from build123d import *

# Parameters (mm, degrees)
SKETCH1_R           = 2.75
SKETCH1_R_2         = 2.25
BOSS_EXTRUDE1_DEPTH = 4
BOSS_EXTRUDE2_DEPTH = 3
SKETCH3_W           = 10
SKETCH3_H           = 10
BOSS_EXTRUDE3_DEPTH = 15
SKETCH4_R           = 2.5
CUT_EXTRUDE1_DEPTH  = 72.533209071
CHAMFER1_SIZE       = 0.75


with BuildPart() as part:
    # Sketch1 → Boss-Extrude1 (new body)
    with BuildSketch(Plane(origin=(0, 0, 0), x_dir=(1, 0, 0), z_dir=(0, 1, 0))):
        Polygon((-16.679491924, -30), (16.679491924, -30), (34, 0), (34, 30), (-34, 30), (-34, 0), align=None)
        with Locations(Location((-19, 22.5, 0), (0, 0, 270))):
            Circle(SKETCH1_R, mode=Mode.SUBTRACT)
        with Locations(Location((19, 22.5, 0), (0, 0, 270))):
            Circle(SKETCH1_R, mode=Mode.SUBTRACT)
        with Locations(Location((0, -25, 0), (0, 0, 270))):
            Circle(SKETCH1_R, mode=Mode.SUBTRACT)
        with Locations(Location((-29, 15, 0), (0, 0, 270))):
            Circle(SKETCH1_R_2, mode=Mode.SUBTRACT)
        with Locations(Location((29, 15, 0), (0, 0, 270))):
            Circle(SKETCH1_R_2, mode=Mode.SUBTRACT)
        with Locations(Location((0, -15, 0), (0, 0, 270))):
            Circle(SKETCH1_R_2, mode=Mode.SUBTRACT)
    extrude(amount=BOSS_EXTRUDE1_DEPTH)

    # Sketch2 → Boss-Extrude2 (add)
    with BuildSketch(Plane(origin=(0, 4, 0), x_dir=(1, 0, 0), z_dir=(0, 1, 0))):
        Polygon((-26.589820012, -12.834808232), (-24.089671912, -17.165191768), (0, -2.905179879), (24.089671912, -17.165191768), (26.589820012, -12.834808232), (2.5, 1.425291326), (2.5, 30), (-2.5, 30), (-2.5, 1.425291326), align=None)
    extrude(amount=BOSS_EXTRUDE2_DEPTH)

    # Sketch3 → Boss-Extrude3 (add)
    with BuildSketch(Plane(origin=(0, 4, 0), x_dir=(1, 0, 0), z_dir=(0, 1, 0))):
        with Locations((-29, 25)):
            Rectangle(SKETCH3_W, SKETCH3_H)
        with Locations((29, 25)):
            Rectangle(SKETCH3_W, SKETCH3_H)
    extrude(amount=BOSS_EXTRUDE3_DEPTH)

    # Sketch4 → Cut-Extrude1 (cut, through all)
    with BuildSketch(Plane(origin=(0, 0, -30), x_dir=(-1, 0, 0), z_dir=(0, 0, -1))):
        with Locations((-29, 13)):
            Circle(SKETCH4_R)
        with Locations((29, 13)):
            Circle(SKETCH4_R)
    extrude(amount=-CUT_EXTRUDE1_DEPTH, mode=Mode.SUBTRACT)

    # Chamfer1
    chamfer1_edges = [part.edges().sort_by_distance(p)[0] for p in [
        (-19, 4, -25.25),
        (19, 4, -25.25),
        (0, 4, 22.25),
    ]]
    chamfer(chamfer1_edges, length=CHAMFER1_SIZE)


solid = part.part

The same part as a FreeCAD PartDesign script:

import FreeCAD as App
import Part
import Sketcher
Q = App.Units.Quantity


def edges_at(feature, points):
    """Names of the edges that pass closest to the given points."""
    edges = feature.Shape.Edges
    near = lambda p: min(range(len(edges)), key=lambda i: edges[i].distToShape(Part.Vertex(*p))[0])
    return sorted({f"Edge{near(p) + 1}" for p in points})

doc = App.newDocument("Part")
body = doc.addObject("PartDesign::Body", "Body")

sketch1 = body.newObject("Sketcher::SketchObject", "Sketch")
sketch1.AttachmentSupport = (doc.getObject("XZ_Plane"), [""])
sketch1.MapMode = "FlatFace"
sketch1.addGeometry([
    Part.LineSegment(App.Vector(-16.679492, 30, 0), App.Vector(16.679492, 30, 0)),
    Part.LineSegment(App.Vector(16.679492, 30, 0), App.Vector(34, 0, 0)),
    Part.LineSegment(App.Vector(34, 0, 0), App.Vector(34, -30, 0)),
    Part.LineSegment(App.Vector(34, -30, 0), App.Vector(-34, -30, 0)),
    Part.LineSegment(App.Vector(-34, -30, 0), App.Vector(-34, 0, 0)),
    Part.LineSegment(App.Vector(-34, 0, 0), App.Vector(-16.679492, 30, 0)),
    Part.Circle(App.Vector(0, 25, 0), App.Vector(0, 0, 1), 2.75),
    Part.Circle(App.Vector(0, 15, 0), App.Vector(0, 0, 1), 2.25),
    Part.Circle(App.Vector(-29, -15, 0), App.Vector(0, 0, 1), 2.25),
    Part.Circle(App.Vector(-19, -22.5, 0), App.Vector(0, 0, 1), 2.75),
    Part.Circle(App.Vector(29, -15, 0), App.Vector(0, 0, 1), 2.25),
    Part.Circle(App.Vector(19, -22.5, 0), App.Vector(0, 0, 1), 2.75),
], False)
sketch1.addConstraint([
    Sketcher.Constraint("Coincident", 0, 2, 1, 1),
    Sketcher.Constraint("Coincident", 1, 2, 2, 1),
    Sketcher.Constraint("Coincident", 2, 2, 3, 1),
    Sketcher.Constraint("Coincident", 3, 2, 4, 1),
    Sketcher.Constraint("Coincident", 4, 2, 5, 1),
    Sketcher.Constraint("Coincident", 5, 2, 0, 1),
    Sketcher.Constraint("Horizontal", 0),
    Sketcher.Constraint("Vertical", 2),
    Sketcher.Constraint("Horizontal", 3),
    Sketcher.Constraint("Vertical", 4),
    Sketcher.Constraint("Equal", 7, 8),
    Sketcher.Constraint("Equal", 6, 9),
    Sketcher.Constraint("Equal", 8, 10),
    Sketcher.Constraint("Equal", 9, 11),
    Sketcher.Constraint("Symmetric", 1, 2, 4, 2, -1, 1),
    Sketcher.Constraint("Symmetric", 8, 3, 10, 3, -2),
    Sketcher.Constraint("Symmetric", 9, 3, 11, 3, -2),
    Sketcher.Constraint("PointOnObject", 6, 3, -2),
    Sketcher.Constraint("PointOnObject", 7, 3, -2),
    Sketcher.Constraint("PointOnObject", 1, 2, -1),
    Sketcher.Constraint("Equal", 1, 5),
    Sketcher.Constraint("Diameter", 6, 5.5),
    Sketcher.Constraint("Diameter", 7, 4.5),
    Sketcher.Constraint("DistanceX", 3, 2, 3, 1, 68.0),
    Sketcher.Constraint("DistanceY", 2, 2, 2, 1, 30.0),
    Sketcher.Constraint("Angle", 1, Q("-60 deg")),
    Sketcher.Constraint("DistanceY", -1, 1, 6, 3, 25.0),
    Sketcher.Constraint("DistanceY", -1, 1, 7, 3, 15.0),
    Sketcher.Constraint("DistanceX", 8, 3, -1, 1, 29.0),
    Sketcher.Constraint("DistanceY", 8, 3, -1, 1, 15.0),
    Sketcher.Constraint("DistanceX", 9, 3, -1, 1, 19.0),
    Sketcher.Constraint("DistanceY", -1, 1, 0, 2, 30.0),
    Sketcher.Constraint("DistanceY", 9, 3, -1, 1, 22.5),
])
pad1 = body.newObject("PartDesign::Pad", "Pad")
pad1.Profile = sketch1
pad1.Length = 4
pad1.Reversed = True

sketch2 = body.newObject("Sketcher::SketchObject", "Sketch001")
sketch2.AttachmentSupport = (doc.getObject("XZ_Plane"), [""])
sketch2.MapMode = "FlatFace"
sketch2.AttachmentOffset = App.Placement(App.Vector(0, 0, -4), App.Rotation())
sketch2.addGeometry([
    Part.LineSegment(App.Vector(-26.58982, 12.834808, 0), App.Vector(-24.089672, 17.165192, 0)),
    Part.LineSegment(App.Vector(-24.089672, 17.165192, 0), App.Vector(0, 2.90518, 0)),
    Part.LineSegment(App.Vector(0, 2.90518, 0), App.Vector(24.089672, 17.165192, 0)),
    Part.LineSegment(App.Vector(24.089672, 17.165192, 0), App.Vector(26.58982, 12.834808, 0)),
    Part.LineSegment(App.Vector(26.58982, 12.834808, 0), App.Vector(2.5, -1.425291, 0)),
    Part.LineSegment(App.Vector(2.5, -1.425291, 0), App.Vector(2.5, -30, 0)),
    Part.LineSegment(App.Vector(2.5, -30, 0), App.Vector(-2.5, -30, 0)),
    Part.LineSegment(App.Vector(-2.5, -30, 0), App.Vector(-2.5, -1.425291, 0)),
    Part.LineSegment(App.Vector(-2.5, -1.425291, 0), App.Vector(-26.58982, 12.834808, 0)),
], False)
sketch2.addConstraint([
    Sketcher.Constraint("Coincident", 0, 2, 1, 1),
    Sketcher.Constraint("Coincident", 1, 2, 2, 1),
    Sketcher.Constraint("Coincident", 2, 2, 3, 1),
    Sketcher.Constraint("Coincident", 3, 2, 4, 1),
    Sketcher.Constraint("Coincident", 4, 2, 5, 1),
    Sketcher.Constraint("Coincident", 5, 2, 6, 1),
    Sketcher.Constraint("Coincident", 6, 2, 7, 1),
    Sketcher.Constraint("Coincident", 7, 2, 8, 1),
    Sketcher.Constraint("Coincident", 8, 2, 0, 1),
    Sketcher.Constraint("Vertical", 5),
    Sketcher.Constraint("Horizontal", 6),
    Sketcher.Constraint("Vertical", 7),
    Sketcher.Constraint("Symmetric", 0, 2, 2, 2, -2),
    Sketcher.Constraint("Symmetric", 4, 2, 7, 2, -2),
    Sketcher.Constraint("Symmetric", 3, 2, 8, 2, -2),
    Sketcher.Constraint("PointOnObject", 1, 2, -2),
    Sketcher.Constraint("Parallel", 2, 4),
    Sketcher.Constraint("DistanceX", 6, 2, 6, 1, 5.0),
    Sketcher.Constraint("Angle", 0, Q("60 deg")),
    Sketcher.Constraint("DistanceY", 5, 2, -1, 1, 30.0),
    Sketcher.Constraint("DistanceY", 5, 2, 5, 1, 28.574709),
    Sketcher.Constraint("DistanceY", 4, 2, 3, 2, 14.2601),
    Sketcher.Constraint("DistanceX", 0, 2, -1, 1, 24.089672),
    Sketcher.Constraint("DistanceY", -1, 1, 0, 2, 17.165192),
])
pad2 = body.newObject("PartDesign::Pad", "Pad001")
pad2.Profile = sketch2
pad2.Length = 3
pad2.Reversed = True

sketch3 = body.newObject("Sketcher::SketchObject", "Sketch002")
sketch3.AttachmentSupport = (doc.getObject("XZ_Plane"), [""])
sketch3.MapMode = "FlatFace"
sketch3.AttachmentOffset = App.Placement(App.Vector(0, 0, -4), App.Rotation())
sketch3.addGeometry([
    Part.LineSegment(App.Vector(-34, -30, 0), App.Vector(-34, -20, 0)),
    Part.LineSegment(App.Vector(-34, -20, 0), App.Vector(-24, -20, 0)),
    Part.LineSegment(App.Vector(-24, -20, 0), App.Vector(-24, -30, 0)),
    Part.LineSegment(App.Vector(-24, -30, 0), App.Vector(-34, -30, 0)),
    Part.LineSegment(App.Vector(24, -30, 0), App.Vector(24, -20, 0)),
    Part.LineSegment(App.Vector(24, -20, 0), App.Vector(34, -20, 0)),
    Part.LineSegment(App.Vector(34, -20, 0), App.Vector(34, -30, 0)),
    Part.LineSegment(App.Vector(34, -30, 0), App.Vector(24, -30, 0)),
], False)
sketch3.addConstraint([
    Sketcher.Constraint("Coincident", 0, 2, 1, 1),
    Sketcher.Constraint("Coincident", 1, 2, 2, 1),
    Sketcher.Constraint("Coincident", 2, 2, 3, 1),
    Sketcher.Constraint("Coincident", 3, 2, 0, 1),
    Sketcher.Constraint("Coincident", 4, 2, 5, 1),
    Sketcher.Constraint("Coincident", 5, 2, 6, 1),
    Sketcher.Constraint("Coincident", 6, 2, 7, 1),
    Sketcher.Constraint("Coincident", 7, 2, 4, 1),
    Sketcher.Constraint("Vertical", 0),
    Sketcher.Constraint("Horizontal", 1),
    Sketcher.Constraint("Vertical", 2),
    Sketcher.Constraint("Horizontal", 3),
    Sketcher.Constraint("Vertical", 4),
    Sketcher.Constraint("Horizontal", 5),
    Sketcher.Constraint("Vertical", 6),
    Sketcher.Constraint("Horizontal", 7),
    Sketcher.Constraint("Symmetric", 1, 2, 4, 2, -2),
    Sketcher.Constraint("Symmetric", 3, 2, 6, 2, -2),
    Sketcher.Constraint("Equal", 7, 0),
    Sketcher.Constraint("DistanceX", 1, 1, 1, 2, 10.0),
    Sketcher.Constraint("DistanceX", 0, 2, -1, 1, 34.0),
    Sketcher.Constraint("DistanceY", 0, 2, -1, 1, 20.0),
])
pad3 = body.newObject("PartDesign::Pad", "Pad002")
pad3.Profile = sketch3
pad3.Length = 15
pad3.Reversed = True

sketch4 = body.newObject("Sketcher::SketchObject", "Sketch003")
sketch4.AttachmentSupport = (doc.getObject("XY_Plane"), [""])
sketch4.MapMode = "FlatFace"
sketch4.AttachmentOffset = App.Placement(App.Vector(0, 0, -30), App.Rotation())
sketch4.addGeometry([
    Part.Circle(App.Vector(29, 13, 0), App.Vector(0, 0, 1), 2.5),
    Part.Circle(App.Vector(-29, 13, 0), App.Vector(0, 0, 1), 2.5),
], False)
sketch4.addConstraint([
    Sketcher.Constraint("Equal", 0, 1),
    Sketcher.Constraint("Symmetric", 0, 3, 1, 3, -2),
    Sketcher.Constraint("Diameter", 0, 5.0),
    Sketcher.Constraint("DistanceX", -1, 1, 0, 3, 29.0),
    Sketcher.Constraint("DistanceY", -1, 1, 0, 3, 13.0),
])
pocket1 = body.newObject("PartDesign::Pocket", "Pocket")
pocket1.Profile = sketch4
pocket1.Type = "ThroughAll"
pocket1.Reversed = True
doc.recompute()

chamfer = body.newObject("PartDesign::Chamfer", "Chamfer")
chamfer.Base = (pocket1, edges_at(pocket1, [(-19, 4, -25.25), (19, 4, -25.25), (0, 4, 22.25)]))
chamfer.Size = 0.75

doc.recompute()
